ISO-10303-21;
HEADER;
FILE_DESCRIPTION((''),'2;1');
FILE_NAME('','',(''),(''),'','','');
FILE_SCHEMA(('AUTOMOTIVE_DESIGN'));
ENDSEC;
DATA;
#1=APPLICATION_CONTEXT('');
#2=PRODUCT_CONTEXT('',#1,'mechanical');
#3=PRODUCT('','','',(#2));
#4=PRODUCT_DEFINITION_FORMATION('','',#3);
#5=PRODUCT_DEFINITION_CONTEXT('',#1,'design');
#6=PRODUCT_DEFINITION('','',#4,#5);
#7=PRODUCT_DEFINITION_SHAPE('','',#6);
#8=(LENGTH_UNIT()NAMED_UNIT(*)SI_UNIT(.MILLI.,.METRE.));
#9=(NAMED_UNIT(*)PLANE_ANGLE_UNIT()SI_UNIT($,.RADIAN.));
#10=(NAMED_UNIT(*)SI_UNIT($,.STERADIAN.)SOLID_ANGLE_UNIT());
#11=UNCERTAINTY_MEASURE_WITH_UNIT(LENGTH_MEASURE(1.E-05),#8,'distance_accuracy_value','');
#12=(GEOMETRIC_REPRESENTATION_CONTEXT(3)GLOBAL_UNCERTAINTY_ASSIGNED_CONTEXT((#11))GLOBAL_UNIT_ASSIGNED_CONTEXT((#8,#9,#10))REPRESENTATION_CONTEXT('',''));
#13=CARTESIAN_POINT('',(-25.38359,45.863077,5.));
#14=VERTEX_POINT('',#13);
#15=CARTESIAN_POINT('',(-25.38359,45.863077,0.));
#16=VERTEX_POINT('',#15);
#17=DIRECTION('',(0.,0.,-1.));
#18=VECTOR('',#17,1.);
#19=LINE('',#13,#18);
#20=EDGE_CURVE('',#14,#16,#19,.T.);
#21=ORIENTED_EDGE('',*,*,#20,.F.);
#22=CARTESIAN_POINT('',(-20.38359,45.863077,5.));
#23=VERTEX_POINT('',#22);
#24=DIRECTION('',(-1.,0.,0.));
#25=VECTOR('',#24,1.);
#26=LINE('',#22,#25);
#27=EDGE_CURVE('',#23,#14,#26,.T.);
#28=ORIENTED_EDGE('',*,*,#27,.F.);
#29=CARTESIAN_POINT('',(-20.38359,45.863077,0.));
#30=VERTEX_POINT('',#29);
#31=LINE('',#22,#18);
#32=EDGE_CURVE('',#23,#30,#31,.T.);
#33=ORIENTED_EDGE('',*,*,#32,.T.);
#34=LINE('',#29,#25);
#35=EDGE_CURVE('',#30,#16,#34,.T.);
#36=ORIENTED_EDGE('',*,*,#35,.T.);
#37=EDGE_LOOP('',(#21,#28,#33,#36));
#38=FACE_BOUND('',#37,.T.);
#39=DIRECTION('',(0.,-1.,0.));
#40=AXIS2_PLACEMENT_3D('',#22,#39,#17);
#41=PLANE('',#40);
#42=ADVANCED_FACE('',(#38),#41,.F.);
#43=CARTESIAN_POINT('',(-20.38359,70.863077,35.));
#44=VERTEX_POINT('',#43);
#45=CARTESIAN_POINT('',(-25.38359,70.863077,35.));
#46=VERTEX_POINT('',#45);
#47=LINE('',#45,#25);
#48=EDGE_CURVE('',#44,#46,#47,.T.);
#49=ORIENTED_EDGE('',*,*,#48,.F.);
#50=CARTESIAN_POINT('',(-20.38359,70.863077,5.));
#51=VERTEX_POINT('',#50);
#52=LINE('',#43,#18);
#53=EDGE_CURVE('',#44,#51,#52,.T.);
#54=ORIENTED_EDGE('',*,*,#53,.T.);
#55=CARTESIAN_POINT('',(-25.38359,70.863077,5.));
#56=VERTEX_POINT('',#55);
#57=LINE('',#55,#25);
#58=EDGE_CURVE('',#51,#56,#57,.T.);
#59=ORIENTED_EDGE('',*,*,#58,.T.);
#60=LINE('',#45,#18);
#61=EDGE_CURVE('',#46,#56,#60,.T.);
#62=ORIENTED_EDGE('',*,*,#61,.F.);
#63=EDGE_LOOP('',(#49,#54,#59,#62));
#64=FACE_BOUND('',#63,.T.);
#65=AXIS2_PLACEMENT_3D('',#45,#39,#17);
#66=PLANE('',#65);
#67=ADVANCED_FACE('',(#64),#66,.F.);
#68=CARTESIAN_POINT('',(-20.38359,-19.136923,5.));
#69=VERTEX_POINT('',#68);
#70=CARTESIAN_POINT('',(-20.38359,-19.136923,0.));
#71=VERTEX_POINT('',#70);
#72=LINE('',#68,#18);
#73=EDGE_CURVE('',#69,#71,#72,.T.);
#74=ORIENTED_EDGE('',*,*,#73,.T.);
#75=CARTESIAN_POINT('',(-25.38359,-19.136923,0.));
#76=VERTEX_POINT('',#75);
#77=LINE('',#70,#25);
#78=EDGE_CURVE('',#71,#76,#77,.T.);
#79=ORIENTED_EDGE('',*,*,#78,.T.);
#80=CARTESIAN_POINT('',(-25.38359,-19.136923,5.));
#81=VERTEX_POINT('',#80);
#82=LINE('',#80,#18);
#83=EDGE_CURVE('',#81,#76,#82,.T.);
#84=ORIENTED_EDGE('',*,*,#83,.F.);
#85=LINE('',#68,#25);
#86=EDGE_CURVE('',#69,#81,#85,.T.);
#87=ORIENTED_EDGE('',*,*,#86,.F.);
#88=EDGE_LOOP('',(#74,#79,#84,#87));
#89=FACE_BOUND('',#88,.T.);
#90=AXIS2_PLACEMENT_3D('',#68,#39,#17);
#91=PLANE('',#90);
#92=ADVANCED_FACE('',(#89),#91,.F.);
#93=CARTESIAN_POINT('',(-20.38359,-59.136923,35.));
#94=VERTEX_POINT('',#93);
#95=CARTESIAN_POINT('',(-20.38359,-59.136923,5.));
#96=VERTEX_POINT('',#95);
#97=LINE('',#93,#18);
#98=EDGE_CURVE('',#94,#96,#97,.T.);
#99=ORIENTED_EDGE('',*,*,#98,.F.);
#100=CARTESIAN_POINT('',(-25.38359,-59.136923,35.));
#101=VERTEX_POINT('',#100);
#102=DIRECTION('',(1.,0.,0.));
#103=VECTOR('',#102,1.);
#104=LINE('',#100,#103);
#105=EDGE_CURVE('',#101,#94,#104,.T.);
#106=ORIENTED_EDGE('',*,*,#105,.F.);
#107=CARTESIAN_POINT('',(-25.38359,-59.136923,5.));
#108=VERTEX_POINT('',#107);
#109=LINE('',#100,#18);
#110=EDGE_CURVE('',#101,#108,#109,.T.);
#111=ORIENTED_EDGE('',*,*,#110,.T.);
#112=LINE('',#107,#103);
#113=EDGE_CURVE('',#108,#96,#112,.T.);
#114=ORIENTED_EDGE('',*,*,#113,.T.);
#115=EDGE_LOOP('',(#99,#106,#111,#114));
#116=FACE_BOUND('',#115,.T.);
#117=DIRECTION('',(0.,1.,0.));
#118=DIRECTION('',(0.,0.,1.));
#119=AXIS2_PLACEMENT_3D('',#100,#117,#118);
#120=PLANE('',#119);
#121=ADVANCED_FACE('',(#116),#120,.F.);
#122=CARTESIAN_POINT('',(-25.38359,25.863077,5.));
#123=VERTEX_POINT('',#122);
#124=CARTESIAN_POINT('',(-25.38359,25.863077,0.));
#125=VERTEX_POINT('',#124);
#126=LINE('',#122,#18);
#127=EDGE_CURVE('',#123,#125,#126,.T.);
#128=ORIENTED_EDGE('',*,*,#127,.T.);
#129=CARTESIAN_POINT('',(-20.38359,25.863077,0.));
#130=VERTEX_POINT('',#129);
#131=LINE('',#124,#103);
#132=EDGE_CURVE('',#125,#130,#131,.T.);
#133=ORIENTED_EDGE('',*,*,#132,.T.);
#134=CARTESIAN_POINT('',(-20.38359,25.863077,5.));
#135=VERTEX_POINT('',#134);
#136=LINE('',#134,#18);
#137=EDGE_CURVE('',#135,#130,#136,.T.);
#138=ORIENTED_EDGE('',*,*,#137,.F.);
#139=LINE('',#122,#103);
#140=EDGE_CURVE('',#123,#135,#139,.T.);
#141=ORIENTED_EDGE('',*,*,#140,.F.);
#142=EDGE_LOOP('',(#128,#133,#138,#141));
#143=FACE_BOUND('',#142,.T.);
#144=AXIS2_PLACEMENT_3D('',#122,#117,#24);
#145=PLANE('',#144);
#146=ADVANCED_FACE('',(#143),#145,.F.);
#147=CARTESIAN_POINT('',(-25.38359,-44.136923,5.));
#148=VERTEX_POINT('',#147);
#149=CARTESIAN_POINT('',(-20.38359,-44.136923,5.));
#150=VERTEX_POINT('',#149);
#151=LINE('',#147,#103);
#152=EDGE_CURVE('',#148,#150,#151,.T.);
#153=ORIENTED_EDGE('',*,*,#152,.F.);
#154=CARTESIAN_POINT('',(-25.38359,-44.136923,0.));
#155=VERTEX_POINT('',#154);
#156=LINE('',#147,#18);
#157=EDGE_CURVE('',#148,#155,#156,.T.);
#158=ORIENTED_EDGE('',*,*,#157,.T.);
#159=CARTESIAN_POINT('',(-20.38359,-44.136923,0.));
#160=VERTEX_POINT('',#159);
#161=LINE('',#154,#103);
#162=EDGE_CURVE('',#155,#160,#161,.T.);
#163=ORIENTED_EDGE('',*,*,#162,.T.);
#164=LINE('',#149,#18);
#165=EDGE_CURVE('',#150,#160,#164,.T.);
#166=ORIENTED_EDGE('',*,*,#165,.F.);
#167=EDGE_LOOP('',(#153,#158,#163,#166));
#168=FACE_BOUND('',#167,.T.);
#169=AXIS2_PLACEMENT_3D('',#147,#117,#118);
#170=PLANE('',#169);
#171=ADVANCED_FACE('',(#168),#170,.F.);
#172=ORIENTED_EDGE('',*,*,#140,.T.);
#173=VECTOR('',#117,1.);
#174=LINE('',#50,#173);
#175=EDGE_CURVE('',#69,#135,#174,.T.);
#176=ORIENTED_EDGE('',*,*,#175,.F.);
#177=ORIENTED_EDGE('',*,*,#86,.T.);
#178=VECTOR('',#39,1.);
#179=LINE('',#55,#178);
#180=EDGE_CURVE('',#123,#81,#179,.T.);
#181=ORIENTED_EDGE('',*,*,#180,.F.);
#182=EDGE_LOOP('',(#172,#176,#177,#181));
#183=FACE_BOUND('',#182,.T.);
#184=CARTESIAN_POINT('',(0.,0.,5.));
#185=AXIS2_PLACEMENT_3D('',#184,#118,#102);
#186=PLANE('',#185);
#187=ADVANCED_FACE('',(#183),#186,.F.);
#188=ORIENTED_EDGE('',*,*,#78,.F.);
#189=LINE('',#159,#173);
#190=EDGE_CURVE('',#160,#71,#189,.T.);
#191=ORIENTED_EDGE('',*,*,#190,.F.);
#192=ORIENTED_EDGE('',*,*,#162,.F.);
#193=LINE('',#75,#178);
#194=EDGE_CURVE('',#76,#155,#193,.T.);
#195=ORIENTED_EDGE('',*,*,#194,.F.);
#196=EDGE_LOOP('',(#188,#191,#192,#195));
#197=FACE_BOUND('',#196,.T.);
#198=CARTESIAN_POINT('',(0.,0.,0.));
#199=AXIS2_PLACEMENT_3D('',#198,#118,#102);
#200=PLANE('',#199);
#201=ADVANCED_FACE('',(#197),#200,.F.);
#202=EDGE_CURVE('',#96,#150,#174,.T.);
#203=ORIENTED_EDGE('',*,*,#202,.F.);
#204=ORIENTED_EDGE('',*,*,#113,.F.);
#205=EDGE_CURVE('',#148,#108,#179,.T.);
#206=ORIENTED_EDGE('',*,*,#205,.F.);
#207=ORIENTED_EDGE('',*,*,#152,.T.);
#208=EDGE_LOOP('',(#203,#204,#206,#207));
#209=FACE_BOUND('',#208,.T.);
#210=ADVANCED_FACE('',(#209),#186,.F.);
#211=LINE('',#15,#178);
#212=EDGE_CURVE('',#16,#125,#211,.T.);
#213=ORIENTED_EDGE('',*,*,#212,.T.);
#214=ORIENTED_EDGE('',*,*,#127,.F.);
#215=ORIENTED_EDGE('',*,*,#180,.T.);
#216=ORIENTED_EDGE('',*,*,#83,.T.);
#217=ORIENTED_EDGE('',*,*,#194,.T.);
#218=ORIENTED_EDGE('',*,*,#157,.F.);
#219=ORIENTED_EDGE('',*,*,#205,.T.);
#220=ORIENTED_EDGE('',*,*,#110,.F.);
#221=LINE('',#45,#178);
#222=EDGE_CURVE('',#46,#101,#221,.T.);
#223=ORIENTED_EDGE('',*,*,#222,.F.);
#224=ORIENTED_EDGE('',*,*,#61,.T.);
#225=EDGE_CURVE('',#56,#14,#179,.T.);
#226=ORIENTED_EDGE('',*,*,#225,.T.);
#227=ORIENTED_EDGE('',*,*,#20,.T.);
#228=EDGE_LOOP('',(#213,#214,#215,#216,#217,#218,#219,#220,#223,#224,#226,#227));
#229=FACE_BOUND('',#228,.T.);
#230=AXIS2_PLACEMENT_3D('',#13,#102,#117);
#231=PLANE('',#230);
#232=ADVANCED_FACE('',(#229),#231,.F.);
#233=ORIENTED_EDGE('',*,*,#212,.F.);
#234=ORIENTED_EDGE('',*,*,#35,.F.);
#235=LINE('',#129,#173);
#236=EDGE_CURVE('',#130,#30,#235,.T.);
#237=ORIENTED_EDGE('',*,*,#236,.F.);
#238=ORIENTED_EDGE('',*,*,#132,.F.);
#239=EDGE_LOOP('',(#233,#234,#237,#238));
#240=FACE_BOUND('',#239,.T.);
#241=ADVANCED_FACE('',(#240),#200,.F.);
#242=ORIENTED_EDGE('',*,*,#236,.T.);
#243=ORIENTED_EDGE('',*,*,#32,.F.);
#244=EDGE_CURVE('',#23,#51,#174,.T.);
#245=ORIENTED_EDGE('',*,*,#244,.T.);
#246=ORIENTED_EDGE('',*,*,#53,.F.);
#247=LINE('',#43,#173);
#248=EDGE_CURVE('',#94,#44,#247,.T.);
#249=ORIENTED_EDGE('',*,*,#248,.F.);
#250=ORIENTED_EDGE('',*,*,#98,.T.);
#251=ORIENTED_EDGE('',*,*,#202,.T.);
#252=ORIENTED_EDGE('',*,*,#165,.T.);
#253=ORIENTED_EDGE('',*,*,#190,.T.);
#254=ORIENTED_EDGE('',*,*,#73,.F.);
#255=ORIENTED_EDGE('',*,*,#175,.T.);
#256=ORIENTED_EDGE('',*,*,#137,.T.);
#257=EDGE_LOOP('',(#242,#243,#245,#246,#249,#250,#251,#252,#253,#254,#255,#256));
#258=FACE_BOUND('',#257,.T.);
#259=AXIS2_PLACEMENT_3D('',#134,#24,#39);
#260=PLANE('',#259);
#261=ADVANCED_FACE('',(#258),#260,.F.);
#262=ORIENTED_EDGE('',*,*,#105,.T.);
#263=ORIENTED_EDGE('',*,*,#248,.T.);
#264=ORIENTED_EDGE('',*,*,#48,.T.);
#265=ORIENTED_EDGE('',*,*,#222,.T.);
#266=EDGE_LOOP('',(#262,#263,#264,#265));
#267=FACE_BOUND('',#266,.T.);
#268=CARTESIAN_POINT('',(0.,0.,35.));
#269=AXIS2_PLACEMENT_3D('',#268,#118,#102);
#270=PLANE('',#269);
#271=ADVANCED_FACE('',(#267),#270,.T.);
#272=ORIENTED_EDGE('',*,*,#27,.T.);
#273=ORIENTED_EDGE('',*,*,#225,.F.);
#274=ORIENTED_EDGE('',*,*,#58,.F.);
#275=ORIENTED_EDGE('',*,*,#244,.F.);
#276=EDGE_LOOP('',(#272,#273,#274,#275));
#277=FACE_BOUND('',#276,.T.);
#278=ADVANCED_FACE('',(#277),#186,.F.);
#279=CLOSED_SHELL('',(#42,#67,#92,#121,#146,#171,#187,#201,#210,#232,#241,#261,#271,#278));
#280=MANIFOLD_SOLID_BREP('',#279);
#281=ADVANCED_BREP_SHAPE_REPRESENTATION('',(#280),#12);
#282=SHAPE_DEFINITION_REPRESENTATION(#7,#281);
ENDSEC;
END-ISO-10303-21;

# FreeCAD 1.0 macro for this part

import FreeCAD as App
import Part
import Sketcher
from FreeCAD import Vector

doc = App.newDocument("Part")
params = doc.addObject("Spreadsheet::Sheet", "Params")
for row, (alias, value) in enumerate([
    ("sketch1_width", "5 mm"),
    ("sketch1_height", "20 mm"),
    ("pad1_length", "5 mm"),
    ("sketch2_width", "5 mm"),
    ("sketch2_height", "25 mm"),
    ("pad2_length", "5 mm"),
    ("sketch3_width", "5 mm"),
    ("sketch3_height", "130 mm"),
    ("pad3_length", "30 mm"),
], start=1):
    params.set(f"A{row}", alias)
    params.set(f"B{row}", "=" + value)
    params.setAlias(f"B{row}", alias)

body = doc.addObject("PartDesign::Body", "Body")

# Sketch on XY plane
sketch1 = doc.addObject("Sketcher::SketchObject", "Sketch")
body.addObject(sketch1)
sketch1.AttachmentSupport = (doc.XY_Plane, [""])
sketch1.MapMode = "FlatFace"
sketch1.addGeometry([
    Part.LineSegment(Vector(-25, 46, 0), Vector(-25, 26, 0)),
    Part.LineSegment(Vector(-25, 26, 0), Vector(-20, 26, 0)),
    Part.LineSegment(Vector(-20, 26, 0), Vector(-20, 46, 0)),
    Part.LineSegment(Vector(-20, 46, 0), Vector(-25, 46, 0)),
], False)
sketch1.addConstraint([
    Sketcher.Constraint("Coincident", 0, 2, 1, 1),
    Sketcher.Constraint("Coincident", 1, 2, 2, 1),
    Sketcher.Constraint("Coincident", 2, 2, 3, 1),
    Sketcher.Constraint("Coincident", 3, 2, 0, 1),
    Sketcher.Constraint("Vertical", 0),
    Sketcher.Constraint("Horizontal", 1),
    Sketcher.Constraint("Vertical", 2),
    Sketcher.Constraint("Horizontal", 3),
    Sketcher.Constraint("DistanceX", 1, 1, 1, 2, 5.0),
    Sketcher.Constraint("DistanceY", 0, 2, 0, 1, 20.0),
    Sketcher.Constraint("DistanceX", 0, 2, -1, 1, 25.38359),
    Sketcher.Constraint("DistanceY", -1, 1, 0, 2, 25.863077),
])
sketch1.setExpression("Constraints[8]", "Params.sketch1_width")
sketch1.setExpression("Constraints[9]", "Params.sketch1_height")
pad1 = doc.addObject("PartDesign::Pad", "Pad")
body.addObject(pad1)
pad1.Profile = sketch1
pad1.setExpression("Length", "Params.pad1_length")
body2 = doc.addObject("PartDesign::Body", "Body001")

# Sketch on XY plane
sketch2 = doc.addObject("Sketcher::SketchObject", "Sketch001")
body2.addObject(sketch2)
sketch2.AttachmentSupport = (doc.getObject("XY_Plane001"), [""])
sketch2.MapMode = "FlatFace"
sketch2.addGeometry([
    Part.LineSegment(Vector(-25, -19, 0), Vector(-25, -44, 0)),
    Part.LineSegment(Vector(-25, -44, 0), Vector(-20, -44, 0)),
    Part.LineSegment(Vector(-20, -44, 0), Vector(-20, -19, 0)),
    Part.LineSegment(Vector(-20, -19, 0), Vector(-25, -19, 0)),
], False)
sketch2.addConstraint([
    Sketcher.Constraint("Coincident", 0, 2, 1, 1),
    Sketcher.Constraint("Coincident", 1, 2, 2, 1),
    Sketcher.Constraint("Coincident", 2, 2, 3, 1),
    Sketcher.Constraint("Coincident", 3, 2, 0, 1),
    Sketcher.Constraint("Vertical", 0),
    Sketcher.Constraint("Horizontal", 1),
    Sketcher.Constraint("Vertical", 2),
    Sketcher.Constraint("Horizontal", 3),
    Sketcher.Constraint("DistanceX", 1, 1, 1, 2, 5.0),
    Sketcher.Constraint("DistanceY", 0, 2, 0, 1, 25.0),
    Sketcher.Constraint("DistanceX", 0, 2, -1, 1, 25.38359),
    Sketcher.Constraint("DistanceY", 0, 2, -1, 1, 44.136923),
])
sketch2.setExpression("Constraints[8]", "Params.sketch2_width")
sketch2.setExpression("Constraints[9]", "Params.sketch2_height")
pad2 = doc.addObject("PartDesign::Pad", "Pad001")
body2.addObject(pad2)
pad2.Profile = sketch2
pad2.setExpression("Length", "Params.pad2_length")
body.AllowCompound = True
doc.recompute()

boolean = doc.addObject("PartDesign::Boolean", "Boolean")
body.addObject(boolean)
boolean.Type = "Fuse"
boolean.addObjects([body2])

# Sketch on XY plane
sketch3 = doc.addObject("Sketcher::SketchObject", "Sketch002")
body.addObject(sketch3)
sketch3.AttachmentSupport = (doc.XY_Plane, [""])
sketch3.MapMode = "FlatFace"
sketch3.AttachmentOffset = App.Placement(Vector(0, 0, 5), App.Rotation())
sketch3.addGeometry([
    Part.LineSegment(Vector(-25, 71, 0), Vector(-25, -59, 0)),
    Part.LineSegment(Vector(-25, -59, 0), Vector(-20, -59, 0)),
    Part.LineSegment(Vector(-20, -59, 0), Vector(-20, 71, 0)),
    Part.LineSegment(Vector(-20, 71, 0), Vector(-25, 71, 0)),
], False)
sketch3.addConstraint([
    Sketcher.Constraint("Coincident", 0, 2, 1, 1),
    Sketcher.Constraint("Coincident", 1, 2, 2, 1),
    Sketcher.Constraint("Coincident", 2, 2, 3, 1),
    Sketcher.Constraint("Coincident", 3, 2, 0, 1),
    Sketcher.Constraint("Vertical", 0),
    Sketcher.Constraint("Horizontal", 1),
    Sketcher.Constraint("Vertical", 2),
    Sketcher.Constraint("Horizontal", 3),
    Sketcher.Constraint("DistanceX", 1, 1, 1, 2, 5.0),
    Sketcher.Constraint("DistanceY", 0, 2, 0, 1, 130.0),
    Sketcher.Constraint("DistanceX", 0, 2, -1, 1, 25.38359),
    Sketcher.Constraint("DistanceY", 0, 2, -1, 1, 59.136923),
])
sketch3.setExpression("Constraints[8]", "Params.sketch3_width")
sketch3.setExpression("Constraints[9]", "Params.sketch3_height")
pad3 = doc.addObject("PartDesign::Pad", "Pad002")
body.addObject(pad3)
pad3.Profile = sketch3
pad3.setExpression("Length", "Params.pad3_length")

doc.recompute()
